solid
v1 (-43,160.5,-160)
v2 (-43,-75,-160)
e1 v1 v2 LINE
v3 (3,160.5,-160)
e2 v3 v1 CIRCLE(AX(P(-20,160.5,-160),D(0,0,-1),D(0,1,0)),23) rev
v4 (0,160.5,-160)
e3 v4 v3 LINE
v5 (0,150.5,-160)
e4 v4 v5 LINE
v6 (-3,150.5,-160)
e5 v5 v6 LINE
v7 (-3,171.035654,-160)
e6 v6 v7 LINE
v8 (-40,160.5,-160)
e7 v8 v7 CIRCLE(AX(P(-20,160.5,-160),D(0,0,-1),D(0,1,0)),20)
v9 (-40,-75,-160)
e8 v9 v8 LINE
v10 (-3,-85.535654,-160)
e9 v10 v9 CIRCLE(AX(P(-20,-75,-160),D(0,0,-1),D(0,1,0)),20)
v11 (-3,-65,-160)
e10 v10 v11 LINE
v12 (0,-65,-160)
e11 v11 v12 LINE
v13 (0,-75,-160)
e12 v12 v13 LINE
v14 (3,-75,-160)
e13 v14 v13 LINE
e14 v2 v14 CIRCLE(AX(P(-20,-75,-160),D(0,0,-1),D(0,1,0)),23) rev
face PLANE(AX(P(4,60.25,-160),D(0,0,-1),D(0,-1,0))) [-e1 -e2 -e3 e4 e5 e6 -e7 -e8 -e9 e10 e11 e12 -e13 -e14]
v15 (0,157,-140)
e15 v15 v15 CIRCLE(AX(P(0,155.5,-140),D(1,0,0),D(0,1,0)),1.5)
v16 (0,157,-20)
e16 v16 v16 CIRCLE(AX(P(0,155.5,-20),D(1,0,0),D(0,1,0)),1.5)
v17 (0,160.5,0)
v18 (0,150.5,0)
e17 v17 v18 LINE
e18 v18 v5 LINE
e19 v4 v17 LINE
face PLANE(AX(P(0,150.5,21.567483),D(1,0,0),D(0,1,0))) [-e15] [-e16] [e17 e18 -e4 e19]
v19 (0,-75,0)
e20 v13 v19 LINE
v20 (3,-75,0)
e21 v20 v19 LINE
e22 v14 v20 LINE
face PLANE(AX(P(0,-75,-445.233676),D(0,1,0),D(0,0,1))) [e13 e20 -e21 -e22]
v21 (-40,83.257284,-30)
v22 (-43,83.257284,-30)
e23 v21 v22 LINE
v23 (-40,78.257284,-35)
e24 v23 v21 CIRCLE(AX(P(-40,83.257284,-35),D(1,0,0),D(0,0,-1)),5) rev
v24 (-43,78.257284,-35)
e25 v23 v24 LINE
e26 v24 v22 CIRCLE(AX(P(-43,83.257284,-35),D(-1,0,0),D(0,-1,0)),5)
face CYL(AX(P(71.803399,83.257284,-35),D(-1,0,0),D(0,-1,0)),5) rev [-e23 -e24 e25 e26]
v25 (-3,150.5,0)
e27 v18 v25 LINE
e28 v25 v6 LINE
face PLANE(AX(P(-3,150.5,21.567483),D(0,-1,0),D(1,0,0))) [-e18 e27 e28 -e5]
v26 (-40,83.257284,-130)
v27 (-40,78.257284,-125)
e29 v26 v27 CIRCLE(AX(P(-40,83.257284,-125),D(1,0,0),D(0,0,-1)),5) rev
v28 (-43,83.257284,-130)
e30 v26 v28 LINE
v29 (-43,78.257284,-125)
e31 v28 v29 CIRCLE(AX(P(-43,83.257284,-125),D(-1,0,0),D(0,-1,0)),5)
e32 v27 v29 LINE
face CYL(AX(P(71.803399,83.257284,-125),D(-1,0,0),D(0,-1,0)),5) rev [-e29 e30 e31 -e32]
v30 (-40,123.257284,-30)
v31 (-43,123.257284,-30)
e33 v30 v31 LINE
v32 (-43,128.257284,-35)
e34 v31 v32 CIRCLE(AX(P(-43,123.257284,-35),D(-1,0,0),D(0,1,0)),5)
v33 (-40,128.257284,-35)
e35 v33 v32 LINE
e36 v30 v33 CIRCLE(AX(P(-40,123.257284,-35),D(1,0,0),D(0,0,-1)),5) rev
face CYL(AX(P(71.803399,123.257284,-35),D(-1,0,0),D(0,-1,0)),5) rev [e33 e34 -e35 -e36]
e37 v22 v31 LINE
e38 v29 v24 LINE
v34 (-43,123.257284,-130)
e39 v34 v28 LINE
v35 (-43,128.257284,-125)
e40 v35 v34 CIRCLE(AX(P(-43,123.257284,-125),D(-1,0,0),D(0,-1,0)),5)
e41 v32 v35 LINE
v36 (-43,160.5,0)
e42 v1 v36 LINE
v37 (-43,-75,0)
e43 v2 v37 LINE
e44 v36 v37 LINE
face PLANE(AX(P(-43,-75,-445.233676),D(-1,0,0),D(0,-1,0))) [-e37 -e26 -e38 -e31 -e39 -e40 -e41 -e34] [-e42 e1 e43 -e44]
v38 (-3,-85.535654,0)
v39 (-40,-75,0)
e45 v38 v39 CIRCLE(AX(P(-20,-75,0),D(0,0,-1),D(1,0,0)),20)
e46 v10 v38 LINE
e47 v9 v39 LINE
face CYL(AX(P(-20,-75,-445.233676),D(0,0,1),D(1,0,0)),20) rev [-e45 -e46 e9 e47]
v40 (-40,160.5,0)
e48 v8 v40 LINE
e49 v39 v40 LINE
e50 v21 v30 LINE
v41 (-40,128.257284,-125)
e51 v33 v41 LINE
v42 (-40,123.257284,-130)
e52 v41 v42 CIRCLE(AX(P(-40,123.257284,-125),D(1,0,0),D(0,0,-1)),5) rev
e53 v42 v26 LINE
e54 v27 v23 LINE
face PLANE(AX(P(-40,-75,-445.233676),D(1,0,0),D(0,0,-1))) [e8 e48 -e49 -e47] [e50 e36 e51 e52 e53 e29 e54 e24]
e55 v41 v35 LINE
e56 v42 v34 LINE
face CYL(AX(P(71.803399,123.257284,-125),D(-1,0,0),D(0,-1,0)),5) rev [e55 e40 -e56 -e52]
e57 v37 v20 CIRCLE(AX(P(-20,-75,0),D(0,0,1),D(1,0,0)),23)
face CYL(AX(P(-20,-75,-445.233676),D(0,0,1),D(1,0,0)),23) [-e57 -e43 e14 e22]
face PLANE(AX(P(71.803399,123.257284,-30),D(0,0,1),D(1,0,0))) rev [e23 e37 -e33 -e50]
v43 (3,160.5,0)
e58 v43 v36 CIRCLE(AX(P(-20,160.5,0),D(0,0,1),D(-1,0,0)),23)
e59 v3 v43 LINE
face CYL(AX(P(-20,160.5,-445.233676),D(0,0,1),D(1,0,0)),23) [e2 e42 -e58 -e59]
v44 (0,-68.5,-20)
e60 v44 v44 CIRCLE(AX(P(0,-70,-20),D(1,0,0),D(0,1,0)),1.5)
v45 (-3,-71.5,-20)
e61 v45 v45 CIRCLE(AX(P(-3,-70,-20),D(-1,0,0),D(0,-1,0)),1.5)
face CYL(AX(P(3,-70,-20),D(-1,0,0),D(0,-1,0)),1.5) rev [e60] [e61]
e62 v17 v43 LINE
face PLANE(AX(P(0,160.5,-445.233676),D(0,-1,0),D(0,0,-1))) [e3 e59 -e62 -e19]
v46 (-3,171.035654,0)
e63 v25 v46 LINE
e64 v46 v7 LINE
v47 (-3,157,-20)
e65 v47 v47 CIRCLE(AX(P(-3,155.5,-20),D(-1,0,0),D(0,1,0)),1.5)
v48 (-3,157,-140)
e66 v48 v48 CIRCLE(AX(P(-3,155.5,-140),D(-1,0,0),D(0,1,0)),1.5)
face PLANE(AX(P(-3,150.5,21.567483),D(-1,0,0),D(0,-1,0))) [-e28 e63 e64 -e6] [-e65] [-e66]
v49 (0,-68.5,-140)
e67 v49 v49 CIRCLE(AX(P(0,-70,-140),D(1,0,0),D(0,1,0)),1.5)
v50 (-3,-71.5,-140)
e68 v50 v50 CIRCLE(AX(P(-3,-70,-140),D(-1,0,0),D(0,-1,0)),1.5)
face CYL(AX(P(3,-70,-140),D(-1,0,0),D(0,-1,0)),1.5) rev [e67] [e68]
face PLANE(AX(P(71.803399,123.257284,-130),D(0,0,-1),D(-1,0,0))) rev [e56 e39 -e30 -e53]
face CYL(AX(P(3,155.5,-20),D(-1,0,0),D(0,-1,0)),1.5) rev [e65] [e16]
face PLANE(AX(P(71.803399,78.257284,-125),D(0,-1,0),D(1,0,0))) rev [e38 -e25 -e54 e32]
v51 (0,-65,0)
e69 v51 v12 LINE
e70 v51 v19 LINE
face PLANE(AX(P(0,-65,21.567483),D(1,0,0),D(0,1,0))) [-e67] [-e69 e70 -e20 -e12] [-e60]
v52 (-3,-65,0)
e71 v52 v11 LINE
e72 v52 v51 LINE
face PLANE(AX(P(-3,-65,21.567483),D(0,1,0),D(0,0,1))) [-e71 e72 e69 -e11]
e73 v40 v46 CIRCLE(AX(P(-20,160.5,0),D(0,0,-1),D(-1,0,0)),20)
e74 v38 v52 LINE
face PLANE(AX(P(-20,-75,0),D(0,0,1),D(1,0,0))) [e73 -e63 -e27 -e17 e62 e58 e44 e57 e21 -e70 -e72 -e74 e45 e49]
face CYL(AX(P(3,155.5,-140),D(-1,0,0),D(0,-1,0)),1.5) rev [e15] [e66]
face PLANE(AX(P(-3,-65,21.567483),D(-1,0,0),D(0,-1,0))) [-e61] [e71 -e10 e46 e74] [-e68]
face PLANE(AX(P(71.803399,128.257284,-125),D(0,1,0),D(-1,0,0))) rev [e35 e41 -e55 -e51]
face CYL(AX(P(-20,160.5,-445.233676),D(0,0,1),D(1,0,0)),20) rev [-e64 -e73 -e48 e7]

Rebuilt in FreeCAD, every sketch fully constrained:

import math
import FreeCAD as App
import Part
import Sketcher
from FreeCAD import Vector
Q = App.Units.Quantity

doc = App.newDocument("Part")
body = doc.addObject("PartDesign::Body", "Body")

# Sketch on XY plane
sketch1 = body.newObject("Sketcher::SketchObject", "Sketch")
sketch1.AttachmentSupport = (doc.getObject("XY_Plane"), [""])
sketch1.MapMode = "FlatFace"
sketch1.addGeometry([
    Part.LineSegment(Vector(-40, -75, 0), Vector(-40, 160.5, 0)),  # 0
    Part.ArcOfCircle(Part.Circle(Vector(-20, 160.5, 0), Vector(0, 0, 1), 20), math.radians(0), math.radians(180)),  # 1
    Part.LineSegment(Vector(0, 160.5, 0), Vector(3, 160.5, 0)),  # 2
    Part.ArcOfCircle(Part.Circle(Vector(-20, 160.5, 0), Vector(0, 0, 1), 23), math.radians(0), math.radians(180)),  # 3
    Part.LineSegment(Vector(-43, 160.5, 0), Vector(-43, -75, 0)),  # 4
    Part.ArcOfCircle(Part.Circle(Vector(-20, -75, 0), Vector(0, 0, 1), 23), math.radians(180), math.radians(360)),  # 5
    Part.LineSegment(Vector(3, -75, 0), Vector(0, -75, 0)),  # 6
    Part.ArcOfCircle(Part.Circle(Vector(-20, -75, 0), Vector(0, 0, 1), 20), math.radians(180), math.radians(360)),  # 7
], False)
sketch1.addConstraint([
    Sketcher.Constraint("Tangent", 0, 2, 1, 2),
    Sketcher.Constraint("Coincident", 1, 1, 2, 1),
    Sketcher.Constraint("Coincident", 2, 2, 3, 1),
    Sketcher.Constraint("Tangent", 3, 2, 4, 1),
    Sketcher.Constraint("Tangent", 4, 2, 5, 1),
    Sketcher.Constraint("Coincident", 5, 2, 6, 1),
    Sketcher.Constraint("Coincident", 6, 2, 7, 2),
    Sketcher.Constraint("Tangent", 7, 1, 0, 1),
    Sketcher.Constraint("Vertical", 0),
    Sketcher.Constraint("Horizontal", 2),
    Sketcher.Constraint("Vertical", 4),
    Sketcher.Constraint("Horizontal", 6),
    Sketcher.Constraint("Coincident", 3, 3, 1, 3),
    Sketcher.Constraint("Coincident", 7, 3, 5, 3),
    Sketcher.Constraint("Equal", 3, 5),
    Sketcher.Constraint("PointOnObject", 1, 1, -2),
    Sketcher.Constraint("Horizontal", 0, 2, 1, 1),
    Sketcher.Constraint("Horizontal", 4, 2, 5, 2),
    Sketcher.Constraint("Radius", 1, Q("20 mm")),
    Sketcher.Constraint("Radius", 3, Q("23 mm")),
    Sketcher.Constraint("DistanceY", 0, 1, 0, 2, Q("235.5 mm")),
    Sketcher.Constraint("DistanceY", 5, 3, -1, 1, Q("75 mm")),
])
pad1 = body.newObject("PartDesign::Pad", "Pad")
pad1.Profile = sketch1
pad1.Length = 160
pad1.Reversed = True

# Sketch on XY plane
sketch2 = body.newObject("Sketcher::SketchObject", "Sketch001")
sketch2.AttachmentSupport = (doc.getObject("XY_Plane"), [""])
sketch2.MapMode = "FlatFace"
sketch2.AttachmentOffset = App.Placement(Vector(0, 0, -160), App.Rotation())
sketch2.addGeometry([
    Part.LineSegment(Vector(0, -65, 0), Vector(0, -86.4, 0)),  # 0
    Part.LineSegment(Vector(0, -86.4, 0), Vector(-3, -86.4, 0)),  # 1
    Part.LineSegment(Vector(-3, -86.4, 0), Vector(-3, -65, 0)),  # 2
    Part.LineSegment(Vector(-3, -65, 0), Vector(0, -65, 0)),  # 3
    Part.LineSegment(Vector(0, 171.9, 0), Vector(0, 150.5, 0)),  # 4
    Part.LineSegment(Vector(0, 150.5, 0), Vector(-3, 150.5, 0)),  # 5
    Part.LineSegment(Vector(-3, 150.5, 0), Vector(-3, 171.9, 0)),  # 6
    Part.LineSegment(Vector(-3, 171.9, 0), Vector(0, 171.9, 0)),  # 7
], False)
sketch2.addConstraint([
    Sketcher.Constraint("Coincident", 0, 2, 1, 1),
    Sketcher.Constraint("Coincident", 1, 2, 2, 1),
    Sketcher.Constraint("Coincident", 2, 2, 3, 1),
    Sketcher.Constraint("Coincident", 3, 2, 0, 1),
    Sketcher.Constraint("Coincident", 4, 2, 5, 1),
    Sketcher.Constraint("Coincident", 5, 2, 6, 1),
    Sketcher.Constraint("Coincident", 6, 2, 7, 1),
    Sketcher.Constraint("Coincident", 7, 2, 4, 1),
    Sketcher.Constraint("Vertical", 0),
    Sketcher.Constraint("Horizontal", 1),
    Sketcher.Constraint("Vertical", 2),
    Sketcher.Constraint("Horizontal", 3),
    Sketcher.Constraint("Vertical", 4),
    Sketcher.Constraint("Horizontal", 5),
    Sketcher.Constraint("Vertical", 6),
    Sketcher.Constraint("Horizontal", 7),
    Sketcher.Constraint("PointOnObject", 0, 2, -2),
    Sketcher.Constraint("PointOnObject", 4, 2, -2),
    Sketcher.Constraint("Vertical", 2, 2, 5, 2),
    Sketcher.Constraint("Equal", 2, 4),
    Sketcher.Constraint("DistanceX", 1, 2, 1, 1, Q("3 mm")),
    Sketcher.Constraint("DistanceY", 2, 2, -1, 1, Q("65 mm")),
    Sketcher.Constraint("DistanceY", -1, 1, 4, 2, Q("150.5 mm")),
    Sketcher.Constraint("DistanceY", 0, 2, 0, 1, Q("21.357817 mm")),
])
pad2 = body.newObject("PartDesign::Pad", "Pad001")
pad2.Profile = sketch2
pad2.Length = 160

# Sketch on YZ plane
sketch3 = body.newObject("Sketcher::SketchObject", "Sketch002")
sketch3.AttachmentSupport = (doc.getObject("YZ_Plane"), [""])
sketch3.MapMode = "FlatFace"
sketch3.AttachmentOffset = App.Placement(Vector(0, 0, -3), App.Rotation())
sketch3.addGeometry([
    Part.Circle(Vector(-70, -140, 0), Vector(0, 0, 1), 1.5),
    Part.Circle(Vector(-70, -20, 0), Vector(0, 0, 1), 1.5),
    Part.Circle(Vector(155.5, -20, 0), Vector(0, 0, 1), 1.5),
    Part.Circle(Vector(155.5, -140, 0), Vector(0, 0, 1), 1.5),
], False)
sketch3.addConstraint([
    Sketcher.Constraint("Equal", 0, 1),
    Sketcher.Constraint("Equal", 1, 2),
    Sketcher.Constraint("Equal", 2, 3),
    Sketcher.Constraint("Horizontal", 1, 3, 2, 3),
    Sketcher.Constraint("Horizontal", 0, 3, 3, 3),
    Sketcher.Constraint("Vertical", 0, 3, 1, 3),
    Sketcher.Constraint("Vertical", 2, 3, 3, 3),
    Sketcher.Constraint("Diameter", 0, Q("3 mm")),
    Sketcher.Constraint("DistanceX", 0, 3, -1, 1, Q("70 mm")),
    Sketcher.Constraint("DistanceY", 0, 3, -1, 1, Q("140 mm")),
    Sketcher.Constraint("DistanceY", 1, 3, -1, 1, Q("20 mm")),
    Sketcher.Constraint("DistanceX", -1, 1, 2, 3, Q("155.5 mm")),
])
pocket1 = body.newObject("PartDesign::Pocket", "Pocket")
pocket1.Profile = sketch3
pocket1.Type = "ThroughAll"
pocket1.Reversed = True

# Sketch on YZ plane
sketch4 = body.newObject("Sketcher::SketchObject", "Sketch003")
sketch4.AttachmentSupport = (doc.getObject("YZ_Plane"), [""])
sketch4.MapMode = "FlatFace"
sketch4.AttachmentOffset = App.Placement(Vector(0, 0, -43), App.Rotation())
sketch4.addGeometry([
    Part.LineSegment(Vector(128, -35, 0), Vector(128, -125, 0)),  # 0
    Part.ArcOfCircle(Part.Circle(Vector(123, -125, 0), Vector(0, 0, 1), 5), math.radians(-90), math.radians(0)),  # 1
    Part.LineSegment(Vector(123, -130, 0), Vector(83, -130, 0)),  # 2
    Part.ArcOfCircle(Part.Circle(Vector(83, -125, 0), Vector(0, 0, 1), 5), math.radians(180), math.radians(270)),  # 3
    Part.LineSegment(Vector(78, -125, 0), Vector(78, -35, 0)),  # 4
    Part.ArcOfCircle(Part.Circle(Vector(83, -35, 0), Vector(0, 0, 1), 5), math.radians(90), math.radians(180)),  # 5
    Part.LineSegment(Vector(83, -30, 0), Vector(123, -30, 0)),  # 6
    Part.ArcOfCircle(Part.Circle(Vector(123, -35, 0), Vector(0, 0, 1), 5), math.radians(0), math.radians(90)),  # 7
], False)
sketch4.addConstraint([
    Sketcher.Constraint("Tangent", 0, 2, 1, 2),
    Sketcher.Constraint("Tangent", 1, 1, 2, 1),
    Sketcher.Constraint("Tangent", 2, 2, 3, 2),
    Sketcher.Constraint("Tangent", 3, 1, 4, 1),
    Sketcher.Constraint("Tangent", 4, 2, 5, 2),
    Sketcher.Constraint("Tangent", 5, 1, 6, 1),
    Sketcher.Constraint("Tangent", 6, 2, 7, 2),
    Sketcher.Constraint("Tangent", 7, 1, 0, 1),
    Sketcher.Constraint("Vertical", 0),
    Sketcher.Constraint("Horizontal", 2),
    Sketcher.Constraint("Vertical", 4),
    Sketcher.Constraint("Horizontal", 6),
    Sketcher.Constraint("Equal", 1, 3),
    Sketcher.Constraint("Equal", 3, 5),
    Sketcher.Constraint("Equal", 5, 7),
    Sketcher.Constraint("Radius", 1, Q("5 mm")),
    Sketcher.Constraint("DistanceX", 2, 2, 2, 1, Q("40 mm")),
    Sketcher.Constraint("DistanceY", 0, 2, 0, 1, Q("90 mm")),
    Sketcher.Constraint("DistanceY", 1, 3, -1, 1, Q("125 mm")),
    Sketcher.Constraint("DistanceX", -1, 1, 1, 3, Q("123.257284 mm")),
])
pocket2 = body.newObject("PartDesign::Pocket", "Pocket001")
pocket2.Profile = sketch4
pocket2.Length = 3
pocket2.Reversed = True

doc.recompute()
